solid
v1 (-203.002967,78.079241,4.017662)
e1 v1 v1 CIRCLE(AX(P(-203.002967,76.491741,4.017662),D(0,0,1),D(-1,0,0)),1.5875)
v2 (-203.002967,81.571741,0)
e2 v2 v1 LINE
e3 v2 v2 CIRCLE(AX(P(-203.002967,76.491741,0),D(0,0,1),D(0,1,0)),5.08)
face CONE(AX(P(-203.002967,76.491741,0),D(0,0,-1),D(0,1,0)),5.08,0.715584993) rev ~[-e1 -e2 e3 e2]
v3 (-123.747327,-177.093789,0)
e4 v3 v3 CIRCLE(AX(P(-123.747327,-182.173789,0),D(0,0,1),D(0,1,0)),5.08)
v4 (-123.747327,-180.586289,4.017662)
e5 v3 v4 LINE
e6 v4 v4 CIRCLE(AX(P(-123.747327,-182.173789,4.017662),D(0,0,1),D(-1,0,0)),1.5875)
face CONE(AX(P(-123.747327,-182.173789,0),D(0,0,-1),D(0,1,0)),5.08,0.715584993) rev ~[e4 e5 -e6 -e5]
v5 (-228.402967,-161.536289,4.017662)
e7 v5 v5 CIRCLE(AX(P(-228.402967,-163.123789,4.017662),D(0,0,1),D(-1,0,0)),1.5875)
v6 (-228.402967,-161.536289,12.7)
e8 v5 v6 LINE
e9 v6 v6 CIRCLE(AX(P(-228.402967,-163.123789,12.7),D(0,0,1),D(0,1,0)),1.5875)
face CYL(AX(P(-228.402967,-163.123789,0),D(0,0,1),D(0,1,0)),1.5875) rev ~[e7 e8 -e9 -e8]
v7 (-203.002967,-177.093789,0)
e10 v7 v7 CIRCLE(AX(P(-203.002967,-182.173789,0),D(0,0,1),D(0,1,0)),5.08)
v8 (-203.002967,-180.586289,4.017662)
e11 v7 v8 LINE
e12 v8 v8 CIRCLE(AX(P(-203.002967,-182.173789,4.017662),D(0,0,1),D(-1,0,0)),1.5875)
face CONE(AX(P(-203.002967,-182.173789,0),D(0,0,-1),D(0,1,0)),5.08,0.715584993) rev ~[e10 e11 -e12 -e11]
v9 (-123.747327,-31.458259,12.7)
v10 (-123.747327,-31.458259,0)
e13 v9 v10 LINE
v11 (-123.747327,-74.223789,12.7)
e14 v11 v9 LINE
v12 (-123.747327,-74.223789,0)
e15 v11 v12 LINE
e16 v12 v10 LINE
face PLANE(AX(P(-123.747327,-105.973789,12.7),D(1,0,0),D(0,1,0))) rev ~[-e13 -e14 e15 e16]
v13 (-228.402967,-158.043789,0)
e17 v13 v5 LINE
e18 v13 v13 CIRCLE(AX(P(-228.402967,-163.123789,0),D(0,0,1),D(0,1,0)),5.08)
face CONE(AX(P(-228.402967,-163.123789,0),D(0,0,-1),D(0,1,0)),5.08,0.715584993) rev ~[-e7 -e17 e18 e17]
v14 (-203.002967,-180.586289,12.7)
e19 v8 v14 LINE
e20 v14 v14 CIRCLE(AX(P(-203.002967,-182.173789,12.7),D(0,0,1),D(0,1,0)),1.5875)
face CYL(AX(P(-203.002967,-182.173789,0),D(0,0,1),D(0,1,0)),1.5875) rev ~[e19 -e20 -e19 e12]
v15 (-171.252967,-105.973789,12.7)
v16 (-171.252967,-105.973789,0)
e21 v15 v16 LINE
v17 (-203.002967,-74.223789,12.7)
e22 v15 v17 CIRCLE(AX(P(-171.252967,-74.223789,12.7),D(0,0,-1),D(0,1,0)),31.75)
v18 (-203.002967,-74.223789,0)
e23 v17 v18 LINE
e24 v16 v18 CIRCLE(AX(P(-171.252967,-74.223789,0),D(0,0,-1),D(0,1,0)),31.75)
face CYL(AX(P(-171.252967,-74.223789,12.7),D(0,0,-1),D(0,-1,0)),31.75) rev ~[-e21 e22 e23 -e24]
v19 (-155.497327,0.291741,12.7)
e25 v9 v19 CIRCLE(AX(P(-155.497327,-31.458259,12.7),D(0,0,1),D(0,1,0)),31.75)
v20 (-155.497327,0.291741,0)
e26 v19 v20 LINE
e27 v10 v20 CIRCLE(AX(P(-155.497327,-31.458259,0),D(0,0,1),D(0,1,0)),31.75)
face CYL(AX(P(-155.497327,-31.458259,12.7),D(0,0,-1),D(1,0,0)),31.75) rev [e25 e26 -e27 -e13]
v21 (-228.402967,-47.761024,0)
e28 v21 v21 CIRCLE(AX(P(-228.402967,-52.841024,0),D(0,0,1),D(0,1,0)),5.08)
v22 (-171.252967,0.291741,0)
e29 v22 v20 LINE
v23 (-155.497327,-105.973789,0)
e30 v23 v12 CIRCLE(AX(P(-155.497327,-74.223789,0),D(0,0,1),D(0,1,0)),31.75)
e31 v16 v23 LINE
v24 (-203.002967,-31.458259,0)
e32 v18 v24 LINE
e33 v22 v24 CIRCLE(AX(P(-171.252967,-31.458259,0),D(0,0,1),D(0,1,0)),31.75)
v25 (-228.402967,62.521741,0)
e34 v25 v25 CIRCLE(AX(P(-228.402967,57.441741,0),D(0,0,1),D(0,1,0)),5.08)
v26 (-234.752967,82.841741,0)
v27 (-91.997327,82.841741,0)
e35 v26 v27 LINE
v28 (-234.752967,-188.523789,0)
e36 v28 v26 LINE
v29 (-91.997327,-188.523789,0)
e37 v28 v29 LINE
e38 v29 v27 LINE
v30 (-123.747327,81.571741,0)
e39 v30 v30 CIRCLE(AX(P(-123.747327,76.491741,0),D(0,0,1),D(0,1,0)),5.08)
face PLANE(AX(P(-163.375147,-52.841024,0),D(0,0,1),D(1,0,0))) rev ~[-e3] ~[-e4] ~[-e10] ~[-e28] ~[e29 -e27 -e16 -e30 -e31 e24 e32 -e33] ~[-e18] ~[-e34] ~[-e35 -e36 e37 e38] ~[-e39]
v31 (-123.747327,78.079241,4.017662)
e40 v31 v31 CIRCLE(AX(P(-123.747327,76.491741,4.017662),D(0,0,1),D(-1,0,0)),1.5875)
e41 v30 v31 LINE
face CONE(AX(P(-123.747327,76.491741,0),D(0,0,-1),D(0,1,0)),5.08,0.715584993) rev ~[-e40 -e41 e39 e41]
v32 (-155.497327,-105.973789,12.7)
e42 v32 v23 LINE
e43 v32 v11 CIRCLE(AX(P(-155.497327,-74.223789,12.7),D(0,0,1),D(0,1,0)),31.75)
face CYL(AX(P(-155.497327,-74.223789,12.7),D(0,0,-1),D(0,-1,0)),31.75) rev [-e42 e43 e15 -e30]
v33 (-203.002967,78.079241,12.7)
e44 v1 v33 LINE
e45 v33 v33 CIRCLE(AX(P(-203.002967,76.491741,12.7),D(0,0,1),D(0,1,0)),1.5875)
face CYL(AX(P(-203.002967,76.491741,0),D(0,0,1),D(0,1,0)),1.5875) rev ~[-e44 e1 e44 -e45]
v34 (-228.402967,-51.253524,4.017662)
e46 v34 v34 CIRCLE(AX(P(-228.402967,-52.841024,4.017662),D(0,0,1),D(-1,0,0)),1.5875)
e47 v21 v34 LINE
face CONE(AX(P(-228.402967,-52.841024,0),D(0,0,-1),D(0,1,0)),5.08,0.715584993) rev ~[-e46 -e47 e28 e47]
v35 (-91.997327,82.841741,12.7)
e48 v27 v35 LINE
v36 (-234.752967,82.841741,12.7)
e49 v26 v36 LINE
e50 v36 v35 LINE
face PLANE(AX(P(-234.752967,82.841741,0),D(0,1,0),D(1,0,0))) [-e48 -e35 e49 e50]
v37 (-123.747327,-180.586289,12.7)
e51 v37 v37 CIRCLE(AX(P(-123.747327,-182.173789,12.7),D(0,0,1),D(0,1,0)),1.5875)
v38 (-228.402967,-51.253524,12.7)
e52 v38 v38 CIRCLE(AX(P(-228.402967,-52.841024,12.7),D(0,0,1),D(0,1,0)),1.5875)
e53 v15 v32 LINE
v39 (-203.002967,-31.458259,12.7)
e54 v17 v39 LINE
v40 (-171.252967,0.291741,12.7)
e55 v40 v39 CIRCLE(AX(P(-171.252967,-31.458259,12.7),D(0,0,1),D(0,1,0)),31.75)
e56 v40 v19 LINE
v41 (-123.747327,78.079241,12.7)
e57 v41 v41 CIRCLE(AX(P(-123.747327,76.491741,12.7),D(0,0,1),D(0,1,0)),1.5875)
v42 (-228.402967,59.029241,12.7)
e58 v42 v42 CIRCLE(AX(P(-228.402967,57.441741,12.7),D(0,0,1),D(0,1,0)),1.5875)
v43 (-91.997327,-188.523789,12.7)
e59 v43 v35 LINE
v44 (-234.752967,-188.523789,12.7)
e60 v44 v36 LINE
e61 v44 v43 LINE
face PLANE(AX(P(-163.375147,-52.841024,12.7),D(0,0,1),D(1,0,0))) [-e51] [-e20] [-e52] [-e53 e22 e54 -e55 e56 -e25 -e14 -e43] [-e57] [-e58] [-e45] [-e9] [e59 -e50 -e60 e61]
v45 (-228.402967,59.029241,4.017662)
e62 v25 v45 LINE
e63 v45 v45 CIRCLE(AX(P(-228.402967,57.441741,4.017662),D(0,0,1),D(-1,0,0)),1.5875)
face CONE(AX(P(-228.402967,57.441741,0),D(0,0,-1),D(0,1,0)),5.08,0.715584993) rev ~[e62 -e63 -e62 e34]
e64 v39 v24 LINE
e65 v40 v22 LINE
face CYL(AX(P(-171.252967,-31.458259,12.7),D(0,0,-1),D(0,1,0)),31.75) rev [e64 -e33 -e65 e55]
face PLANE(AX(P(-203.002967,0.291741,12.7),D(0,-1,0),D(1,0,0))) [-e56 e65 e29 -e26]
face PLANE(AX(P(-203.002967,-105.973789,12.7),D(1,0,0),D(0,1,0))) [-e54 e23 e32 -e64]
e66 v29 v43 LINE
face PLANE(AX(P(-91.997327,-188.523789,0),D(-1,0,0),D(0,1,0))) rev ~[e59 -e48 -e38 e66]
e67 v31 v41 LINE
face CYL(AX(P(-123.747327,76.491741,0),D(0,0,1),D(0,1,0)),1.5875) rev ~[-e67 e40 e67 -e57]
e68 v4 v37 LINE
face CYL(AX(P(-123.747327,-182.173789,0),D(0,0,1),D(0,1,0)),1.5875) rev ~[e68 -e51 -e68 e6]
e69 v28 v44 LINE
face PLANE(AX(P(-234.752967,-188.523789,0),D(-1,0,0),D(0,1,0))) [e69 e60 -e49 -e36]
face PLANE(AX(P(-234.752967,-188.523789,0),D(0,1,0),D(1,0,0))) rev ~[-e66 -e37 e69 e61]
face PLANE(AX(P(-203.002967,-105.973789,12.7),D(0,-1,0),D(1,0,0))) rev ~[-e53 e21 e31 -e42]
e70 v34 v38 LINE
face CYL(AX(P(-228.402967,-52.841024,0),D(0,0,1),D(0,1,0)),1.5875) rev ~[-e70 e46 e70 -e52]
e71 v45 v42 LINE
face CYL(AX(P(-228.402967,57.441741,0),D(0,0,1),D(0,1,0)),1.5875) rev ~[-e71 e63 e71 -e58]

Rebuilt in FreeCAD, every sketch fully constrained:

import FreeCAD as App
import Part
import Sketcher
Q = App.Units.Quantity


def edges_at(feature, points):
    """Names of the edges that pass closest to the given points."""
    edges = feature.Shape.Edges
    near = lambda p: min(range(len(edges)), key=lambda i: edges[i].distToShape(Part.Vertex(*p))[0])
    return sorted({f"Edge{near(p) + 1}" for p in points})


def add_polygon(sketch, points):
    """Adds a closed chain of lines whose ends are joined by coincident constraints."""
    first, n = sketch.GeometryCount, len(points)
    for a, b in zip(points, points[1:] + points[:1]):
        sketch.addGeometry(Part.LineSegment(App.Vector(*a, 0), App.Vector(*b, 0)), False)
    for i in range(n):
        sketch.addConstraint(Sketcher.Constraint("Coincident", first + i, 2, first + (i + 1) % n, 1))

doc = App.newDocument("Part")
body = doc.addObject("PartDesign::Body", "Body")

# Sketch on XY plane
sketch1 = doc.addObject("Sketcher::SketchObject", "Sketch")
body.addObject(sketch1)
sketch1.AttachmentSupport = (doc.XY_Plane, [""])
sketch1.MapMode = "FlatFace"
add_polygon(sketch1, [(-235, 83), (-235, -189), (-92, -189), (-92, 83)])  # lines 0-3
sketch1.addConstraint([
    Sketcher.Constraint("Vertical", 0),
    Sketcher.Constraint("Horizontal", 1),
    Sketcher.Constraint("Vertical", 2),
    Sketcher.Constraint("Horizontal", 3),
    Sketcher.Constraint("DistanceX", 1, 1, 1, 2, 142.75564),
    Sketcher.Constraint("DistanceY", 0, 2, 0, 1, 271.36553),
    Sketcher.Constraint("DistanceY", 0, 2, -1, 1, 188.523789),
    Sketcher.Constraint("DistanceX", 0, 2, -1, 1, 234.752967),
])
pad1 = doc.addObject("PartDesign::Pad", "Pad")
body.addObject(pad1)
pad1.Profile = sketch1
pad1.Length = Q("0.5 in")

# Sketch on XY plane
sketch2 = doc.addObject("Sketcher::SketchObject", "Sketch001")
body.addObject(sketch2)
sketch2.AttachmentSupport = (doc.XY_Plane, [""])
sketch2.MapMode = "FlatFace"
sketch2.addGeometry([
    Part.Circle(App.Vector(-203, -182.2, 0), App.Vector(0, 0, 1), 1.6),  # 0
    Part.Circle(App.Vector(-203, 76.5, 0), App.Vector(0, 0, 1), 1.6),  # 1
    Part.Circle(App.Vector(-123.7, 76.5, 0), App.Vector(0, 0, 1), 1.6),  # 2
    Part.Circle(App.Vector(-228.4, 57.4, 0), App.Vector(0, 0, 1), 1.6),  # 3
    Part.Circle(App.Vector(-228.4, -52.8, 0), App.Vector(0, 0, 1), 1.6),  # 4
    Part.Circle(App.Vector(-228.4, -163.1, 0), App.Vector(0, 0, 1), 1.6),  # 5
    Part.Circle(App.Vector(-123.7, -182.2, 0), App.Vector(0, 0, 1), 1.6),  # 6
], False)
sketch2.addConstraint([
    Sketcher.Constraint("Equal", 0, 1),
    Sketcher.Constraint("Equal", 1, 2),
    Sketcher.Constraint("Equal", 2, 3),
    Sketcher.Constraint("Equal", 3, 4),
    Sketcher.Constraint("Equal", 4, 5),
    Sketcher.Constraint("Equal", 5, 6),
    Sketcher.Constraint("Horizontal", 1, 3, 2, 3),
    Sketcher.Constraint("Horizontal", 0, 3, 6, 3),
    Sketcher.Constraint("Vertical", 0, 3, 1, 3),
    Sketcher.Constraint("Vertical", 3, 3, 4, 3),
    Sketcher.Constraint("Vertical", 4, 3, 5, 3),
    Sketcher.Constraint("Vertical", 2, 3, 6, 3),
    Sketcher.Constraint("Diameter", 0, Q("0.125 in")),
    Sketcher.Constraint("DistanceX", 3, 3, 1, 3, Q("1 in")),
    Sketcher.Constraint("DistanceY", 3, 3, 1, 3, Q("0.75 in")),
    Sketcher.Constraint("DistanceY", 0, 3, 5, 3, Q("0.75 in")),
    Sketcher.Constraint("DistanceY", 0, 3, -1, 1, 182.173789),
    Sketcher.Constraint("DistanceY", -1, 1, 1, 3, 76.491741),
    Sketcher.Constraint("DistanceX", 1, 3, 2, 3, 79.25564),
    Sketcher.Constraint("DistanceX", 0, 3, -1, 1, 203.002967),
    Sketcher.Constraint("DistanceY", 4, 3, -1, 1, 52.841024),
])
doc.recompute()
hole = doc.addObject("PartDesign::Hole", "Hole")
body.addObject(hole)
hole.Profile = sketch2
hole.ThreadType = "None"
hole.Diameter = Q("0.125 in")
hole.DepthType = "Dimension"
hole.Depth = Q("1.25 in")
hole.DrillPoint = "Angled"
hole.DrillPointAngle = 118
hole.HoleCutType = "Countersink"
hole.HoleCutDiameter = Q("0.4 in")
hole.HoleCutCountersinkAngle = 82
hole.Reversed = True

# Sketch on XY plane
sketch3 = doc.addObject("Sketcher::SketchObject", "Sketch002")
body.addObject(sketch3)
sketch3.AttachmentSupport = (doc.XY_Plane, [""])
sketch3.MapMode = "FlatFace"
sketch3.AttachmentOffset = App.Placement(App.Vector(0, 0, 0.5 * 25.4), App.Rotation())
add_polygon(sketch3, [(-203, 0), (-203, -106), (-124, -106), (-124, 0)])  # lines 0-3
sketch3.addConstraint([
    Sketcher.Constraint("Vertical", 0),
    Sketcher.Constraint("Horizontal", 1),
    Sketcher.Constraint("Vertical", 2),
    Sketcher.Constraint("Horizontal", 3),
    Sketcher.Constraint("DistanceX", 1, 1, 1, 2, 79.25564),
    Sketcher.Constraint("DistanceY", 0, 2, 0, 1, 106.26553),
    Sketcher.Constraint("DistanceY", 0, 2, -1, 1, 105.973789),
    Sketcher.Constraint("DistanceX", 0, 2, -1, 1, 203.002967),
])
pocket1 = doc.addObject("PartDesign::Pocket", "Pocket")
body.addObject(pocket1)
pocket1.Profile = sketch3
pocket1.Type = "ThroughAll"
doc.recompute()

fillet = doc.addObject("PartDesign::Fillet", "Fillet")
body.addObject(fillet)
fillet.Base = (pocket1, edges_at(pocket1, [
    (-203.003, -105.974, 6.35),
    (-203.003, 0.292, 6.35),
    (-123.747, 0.292, 6.35),
    (-123.747, -105.974, 6.35),
]))
fillet.Radius = Q("1.25 in")

doc.recompute()
